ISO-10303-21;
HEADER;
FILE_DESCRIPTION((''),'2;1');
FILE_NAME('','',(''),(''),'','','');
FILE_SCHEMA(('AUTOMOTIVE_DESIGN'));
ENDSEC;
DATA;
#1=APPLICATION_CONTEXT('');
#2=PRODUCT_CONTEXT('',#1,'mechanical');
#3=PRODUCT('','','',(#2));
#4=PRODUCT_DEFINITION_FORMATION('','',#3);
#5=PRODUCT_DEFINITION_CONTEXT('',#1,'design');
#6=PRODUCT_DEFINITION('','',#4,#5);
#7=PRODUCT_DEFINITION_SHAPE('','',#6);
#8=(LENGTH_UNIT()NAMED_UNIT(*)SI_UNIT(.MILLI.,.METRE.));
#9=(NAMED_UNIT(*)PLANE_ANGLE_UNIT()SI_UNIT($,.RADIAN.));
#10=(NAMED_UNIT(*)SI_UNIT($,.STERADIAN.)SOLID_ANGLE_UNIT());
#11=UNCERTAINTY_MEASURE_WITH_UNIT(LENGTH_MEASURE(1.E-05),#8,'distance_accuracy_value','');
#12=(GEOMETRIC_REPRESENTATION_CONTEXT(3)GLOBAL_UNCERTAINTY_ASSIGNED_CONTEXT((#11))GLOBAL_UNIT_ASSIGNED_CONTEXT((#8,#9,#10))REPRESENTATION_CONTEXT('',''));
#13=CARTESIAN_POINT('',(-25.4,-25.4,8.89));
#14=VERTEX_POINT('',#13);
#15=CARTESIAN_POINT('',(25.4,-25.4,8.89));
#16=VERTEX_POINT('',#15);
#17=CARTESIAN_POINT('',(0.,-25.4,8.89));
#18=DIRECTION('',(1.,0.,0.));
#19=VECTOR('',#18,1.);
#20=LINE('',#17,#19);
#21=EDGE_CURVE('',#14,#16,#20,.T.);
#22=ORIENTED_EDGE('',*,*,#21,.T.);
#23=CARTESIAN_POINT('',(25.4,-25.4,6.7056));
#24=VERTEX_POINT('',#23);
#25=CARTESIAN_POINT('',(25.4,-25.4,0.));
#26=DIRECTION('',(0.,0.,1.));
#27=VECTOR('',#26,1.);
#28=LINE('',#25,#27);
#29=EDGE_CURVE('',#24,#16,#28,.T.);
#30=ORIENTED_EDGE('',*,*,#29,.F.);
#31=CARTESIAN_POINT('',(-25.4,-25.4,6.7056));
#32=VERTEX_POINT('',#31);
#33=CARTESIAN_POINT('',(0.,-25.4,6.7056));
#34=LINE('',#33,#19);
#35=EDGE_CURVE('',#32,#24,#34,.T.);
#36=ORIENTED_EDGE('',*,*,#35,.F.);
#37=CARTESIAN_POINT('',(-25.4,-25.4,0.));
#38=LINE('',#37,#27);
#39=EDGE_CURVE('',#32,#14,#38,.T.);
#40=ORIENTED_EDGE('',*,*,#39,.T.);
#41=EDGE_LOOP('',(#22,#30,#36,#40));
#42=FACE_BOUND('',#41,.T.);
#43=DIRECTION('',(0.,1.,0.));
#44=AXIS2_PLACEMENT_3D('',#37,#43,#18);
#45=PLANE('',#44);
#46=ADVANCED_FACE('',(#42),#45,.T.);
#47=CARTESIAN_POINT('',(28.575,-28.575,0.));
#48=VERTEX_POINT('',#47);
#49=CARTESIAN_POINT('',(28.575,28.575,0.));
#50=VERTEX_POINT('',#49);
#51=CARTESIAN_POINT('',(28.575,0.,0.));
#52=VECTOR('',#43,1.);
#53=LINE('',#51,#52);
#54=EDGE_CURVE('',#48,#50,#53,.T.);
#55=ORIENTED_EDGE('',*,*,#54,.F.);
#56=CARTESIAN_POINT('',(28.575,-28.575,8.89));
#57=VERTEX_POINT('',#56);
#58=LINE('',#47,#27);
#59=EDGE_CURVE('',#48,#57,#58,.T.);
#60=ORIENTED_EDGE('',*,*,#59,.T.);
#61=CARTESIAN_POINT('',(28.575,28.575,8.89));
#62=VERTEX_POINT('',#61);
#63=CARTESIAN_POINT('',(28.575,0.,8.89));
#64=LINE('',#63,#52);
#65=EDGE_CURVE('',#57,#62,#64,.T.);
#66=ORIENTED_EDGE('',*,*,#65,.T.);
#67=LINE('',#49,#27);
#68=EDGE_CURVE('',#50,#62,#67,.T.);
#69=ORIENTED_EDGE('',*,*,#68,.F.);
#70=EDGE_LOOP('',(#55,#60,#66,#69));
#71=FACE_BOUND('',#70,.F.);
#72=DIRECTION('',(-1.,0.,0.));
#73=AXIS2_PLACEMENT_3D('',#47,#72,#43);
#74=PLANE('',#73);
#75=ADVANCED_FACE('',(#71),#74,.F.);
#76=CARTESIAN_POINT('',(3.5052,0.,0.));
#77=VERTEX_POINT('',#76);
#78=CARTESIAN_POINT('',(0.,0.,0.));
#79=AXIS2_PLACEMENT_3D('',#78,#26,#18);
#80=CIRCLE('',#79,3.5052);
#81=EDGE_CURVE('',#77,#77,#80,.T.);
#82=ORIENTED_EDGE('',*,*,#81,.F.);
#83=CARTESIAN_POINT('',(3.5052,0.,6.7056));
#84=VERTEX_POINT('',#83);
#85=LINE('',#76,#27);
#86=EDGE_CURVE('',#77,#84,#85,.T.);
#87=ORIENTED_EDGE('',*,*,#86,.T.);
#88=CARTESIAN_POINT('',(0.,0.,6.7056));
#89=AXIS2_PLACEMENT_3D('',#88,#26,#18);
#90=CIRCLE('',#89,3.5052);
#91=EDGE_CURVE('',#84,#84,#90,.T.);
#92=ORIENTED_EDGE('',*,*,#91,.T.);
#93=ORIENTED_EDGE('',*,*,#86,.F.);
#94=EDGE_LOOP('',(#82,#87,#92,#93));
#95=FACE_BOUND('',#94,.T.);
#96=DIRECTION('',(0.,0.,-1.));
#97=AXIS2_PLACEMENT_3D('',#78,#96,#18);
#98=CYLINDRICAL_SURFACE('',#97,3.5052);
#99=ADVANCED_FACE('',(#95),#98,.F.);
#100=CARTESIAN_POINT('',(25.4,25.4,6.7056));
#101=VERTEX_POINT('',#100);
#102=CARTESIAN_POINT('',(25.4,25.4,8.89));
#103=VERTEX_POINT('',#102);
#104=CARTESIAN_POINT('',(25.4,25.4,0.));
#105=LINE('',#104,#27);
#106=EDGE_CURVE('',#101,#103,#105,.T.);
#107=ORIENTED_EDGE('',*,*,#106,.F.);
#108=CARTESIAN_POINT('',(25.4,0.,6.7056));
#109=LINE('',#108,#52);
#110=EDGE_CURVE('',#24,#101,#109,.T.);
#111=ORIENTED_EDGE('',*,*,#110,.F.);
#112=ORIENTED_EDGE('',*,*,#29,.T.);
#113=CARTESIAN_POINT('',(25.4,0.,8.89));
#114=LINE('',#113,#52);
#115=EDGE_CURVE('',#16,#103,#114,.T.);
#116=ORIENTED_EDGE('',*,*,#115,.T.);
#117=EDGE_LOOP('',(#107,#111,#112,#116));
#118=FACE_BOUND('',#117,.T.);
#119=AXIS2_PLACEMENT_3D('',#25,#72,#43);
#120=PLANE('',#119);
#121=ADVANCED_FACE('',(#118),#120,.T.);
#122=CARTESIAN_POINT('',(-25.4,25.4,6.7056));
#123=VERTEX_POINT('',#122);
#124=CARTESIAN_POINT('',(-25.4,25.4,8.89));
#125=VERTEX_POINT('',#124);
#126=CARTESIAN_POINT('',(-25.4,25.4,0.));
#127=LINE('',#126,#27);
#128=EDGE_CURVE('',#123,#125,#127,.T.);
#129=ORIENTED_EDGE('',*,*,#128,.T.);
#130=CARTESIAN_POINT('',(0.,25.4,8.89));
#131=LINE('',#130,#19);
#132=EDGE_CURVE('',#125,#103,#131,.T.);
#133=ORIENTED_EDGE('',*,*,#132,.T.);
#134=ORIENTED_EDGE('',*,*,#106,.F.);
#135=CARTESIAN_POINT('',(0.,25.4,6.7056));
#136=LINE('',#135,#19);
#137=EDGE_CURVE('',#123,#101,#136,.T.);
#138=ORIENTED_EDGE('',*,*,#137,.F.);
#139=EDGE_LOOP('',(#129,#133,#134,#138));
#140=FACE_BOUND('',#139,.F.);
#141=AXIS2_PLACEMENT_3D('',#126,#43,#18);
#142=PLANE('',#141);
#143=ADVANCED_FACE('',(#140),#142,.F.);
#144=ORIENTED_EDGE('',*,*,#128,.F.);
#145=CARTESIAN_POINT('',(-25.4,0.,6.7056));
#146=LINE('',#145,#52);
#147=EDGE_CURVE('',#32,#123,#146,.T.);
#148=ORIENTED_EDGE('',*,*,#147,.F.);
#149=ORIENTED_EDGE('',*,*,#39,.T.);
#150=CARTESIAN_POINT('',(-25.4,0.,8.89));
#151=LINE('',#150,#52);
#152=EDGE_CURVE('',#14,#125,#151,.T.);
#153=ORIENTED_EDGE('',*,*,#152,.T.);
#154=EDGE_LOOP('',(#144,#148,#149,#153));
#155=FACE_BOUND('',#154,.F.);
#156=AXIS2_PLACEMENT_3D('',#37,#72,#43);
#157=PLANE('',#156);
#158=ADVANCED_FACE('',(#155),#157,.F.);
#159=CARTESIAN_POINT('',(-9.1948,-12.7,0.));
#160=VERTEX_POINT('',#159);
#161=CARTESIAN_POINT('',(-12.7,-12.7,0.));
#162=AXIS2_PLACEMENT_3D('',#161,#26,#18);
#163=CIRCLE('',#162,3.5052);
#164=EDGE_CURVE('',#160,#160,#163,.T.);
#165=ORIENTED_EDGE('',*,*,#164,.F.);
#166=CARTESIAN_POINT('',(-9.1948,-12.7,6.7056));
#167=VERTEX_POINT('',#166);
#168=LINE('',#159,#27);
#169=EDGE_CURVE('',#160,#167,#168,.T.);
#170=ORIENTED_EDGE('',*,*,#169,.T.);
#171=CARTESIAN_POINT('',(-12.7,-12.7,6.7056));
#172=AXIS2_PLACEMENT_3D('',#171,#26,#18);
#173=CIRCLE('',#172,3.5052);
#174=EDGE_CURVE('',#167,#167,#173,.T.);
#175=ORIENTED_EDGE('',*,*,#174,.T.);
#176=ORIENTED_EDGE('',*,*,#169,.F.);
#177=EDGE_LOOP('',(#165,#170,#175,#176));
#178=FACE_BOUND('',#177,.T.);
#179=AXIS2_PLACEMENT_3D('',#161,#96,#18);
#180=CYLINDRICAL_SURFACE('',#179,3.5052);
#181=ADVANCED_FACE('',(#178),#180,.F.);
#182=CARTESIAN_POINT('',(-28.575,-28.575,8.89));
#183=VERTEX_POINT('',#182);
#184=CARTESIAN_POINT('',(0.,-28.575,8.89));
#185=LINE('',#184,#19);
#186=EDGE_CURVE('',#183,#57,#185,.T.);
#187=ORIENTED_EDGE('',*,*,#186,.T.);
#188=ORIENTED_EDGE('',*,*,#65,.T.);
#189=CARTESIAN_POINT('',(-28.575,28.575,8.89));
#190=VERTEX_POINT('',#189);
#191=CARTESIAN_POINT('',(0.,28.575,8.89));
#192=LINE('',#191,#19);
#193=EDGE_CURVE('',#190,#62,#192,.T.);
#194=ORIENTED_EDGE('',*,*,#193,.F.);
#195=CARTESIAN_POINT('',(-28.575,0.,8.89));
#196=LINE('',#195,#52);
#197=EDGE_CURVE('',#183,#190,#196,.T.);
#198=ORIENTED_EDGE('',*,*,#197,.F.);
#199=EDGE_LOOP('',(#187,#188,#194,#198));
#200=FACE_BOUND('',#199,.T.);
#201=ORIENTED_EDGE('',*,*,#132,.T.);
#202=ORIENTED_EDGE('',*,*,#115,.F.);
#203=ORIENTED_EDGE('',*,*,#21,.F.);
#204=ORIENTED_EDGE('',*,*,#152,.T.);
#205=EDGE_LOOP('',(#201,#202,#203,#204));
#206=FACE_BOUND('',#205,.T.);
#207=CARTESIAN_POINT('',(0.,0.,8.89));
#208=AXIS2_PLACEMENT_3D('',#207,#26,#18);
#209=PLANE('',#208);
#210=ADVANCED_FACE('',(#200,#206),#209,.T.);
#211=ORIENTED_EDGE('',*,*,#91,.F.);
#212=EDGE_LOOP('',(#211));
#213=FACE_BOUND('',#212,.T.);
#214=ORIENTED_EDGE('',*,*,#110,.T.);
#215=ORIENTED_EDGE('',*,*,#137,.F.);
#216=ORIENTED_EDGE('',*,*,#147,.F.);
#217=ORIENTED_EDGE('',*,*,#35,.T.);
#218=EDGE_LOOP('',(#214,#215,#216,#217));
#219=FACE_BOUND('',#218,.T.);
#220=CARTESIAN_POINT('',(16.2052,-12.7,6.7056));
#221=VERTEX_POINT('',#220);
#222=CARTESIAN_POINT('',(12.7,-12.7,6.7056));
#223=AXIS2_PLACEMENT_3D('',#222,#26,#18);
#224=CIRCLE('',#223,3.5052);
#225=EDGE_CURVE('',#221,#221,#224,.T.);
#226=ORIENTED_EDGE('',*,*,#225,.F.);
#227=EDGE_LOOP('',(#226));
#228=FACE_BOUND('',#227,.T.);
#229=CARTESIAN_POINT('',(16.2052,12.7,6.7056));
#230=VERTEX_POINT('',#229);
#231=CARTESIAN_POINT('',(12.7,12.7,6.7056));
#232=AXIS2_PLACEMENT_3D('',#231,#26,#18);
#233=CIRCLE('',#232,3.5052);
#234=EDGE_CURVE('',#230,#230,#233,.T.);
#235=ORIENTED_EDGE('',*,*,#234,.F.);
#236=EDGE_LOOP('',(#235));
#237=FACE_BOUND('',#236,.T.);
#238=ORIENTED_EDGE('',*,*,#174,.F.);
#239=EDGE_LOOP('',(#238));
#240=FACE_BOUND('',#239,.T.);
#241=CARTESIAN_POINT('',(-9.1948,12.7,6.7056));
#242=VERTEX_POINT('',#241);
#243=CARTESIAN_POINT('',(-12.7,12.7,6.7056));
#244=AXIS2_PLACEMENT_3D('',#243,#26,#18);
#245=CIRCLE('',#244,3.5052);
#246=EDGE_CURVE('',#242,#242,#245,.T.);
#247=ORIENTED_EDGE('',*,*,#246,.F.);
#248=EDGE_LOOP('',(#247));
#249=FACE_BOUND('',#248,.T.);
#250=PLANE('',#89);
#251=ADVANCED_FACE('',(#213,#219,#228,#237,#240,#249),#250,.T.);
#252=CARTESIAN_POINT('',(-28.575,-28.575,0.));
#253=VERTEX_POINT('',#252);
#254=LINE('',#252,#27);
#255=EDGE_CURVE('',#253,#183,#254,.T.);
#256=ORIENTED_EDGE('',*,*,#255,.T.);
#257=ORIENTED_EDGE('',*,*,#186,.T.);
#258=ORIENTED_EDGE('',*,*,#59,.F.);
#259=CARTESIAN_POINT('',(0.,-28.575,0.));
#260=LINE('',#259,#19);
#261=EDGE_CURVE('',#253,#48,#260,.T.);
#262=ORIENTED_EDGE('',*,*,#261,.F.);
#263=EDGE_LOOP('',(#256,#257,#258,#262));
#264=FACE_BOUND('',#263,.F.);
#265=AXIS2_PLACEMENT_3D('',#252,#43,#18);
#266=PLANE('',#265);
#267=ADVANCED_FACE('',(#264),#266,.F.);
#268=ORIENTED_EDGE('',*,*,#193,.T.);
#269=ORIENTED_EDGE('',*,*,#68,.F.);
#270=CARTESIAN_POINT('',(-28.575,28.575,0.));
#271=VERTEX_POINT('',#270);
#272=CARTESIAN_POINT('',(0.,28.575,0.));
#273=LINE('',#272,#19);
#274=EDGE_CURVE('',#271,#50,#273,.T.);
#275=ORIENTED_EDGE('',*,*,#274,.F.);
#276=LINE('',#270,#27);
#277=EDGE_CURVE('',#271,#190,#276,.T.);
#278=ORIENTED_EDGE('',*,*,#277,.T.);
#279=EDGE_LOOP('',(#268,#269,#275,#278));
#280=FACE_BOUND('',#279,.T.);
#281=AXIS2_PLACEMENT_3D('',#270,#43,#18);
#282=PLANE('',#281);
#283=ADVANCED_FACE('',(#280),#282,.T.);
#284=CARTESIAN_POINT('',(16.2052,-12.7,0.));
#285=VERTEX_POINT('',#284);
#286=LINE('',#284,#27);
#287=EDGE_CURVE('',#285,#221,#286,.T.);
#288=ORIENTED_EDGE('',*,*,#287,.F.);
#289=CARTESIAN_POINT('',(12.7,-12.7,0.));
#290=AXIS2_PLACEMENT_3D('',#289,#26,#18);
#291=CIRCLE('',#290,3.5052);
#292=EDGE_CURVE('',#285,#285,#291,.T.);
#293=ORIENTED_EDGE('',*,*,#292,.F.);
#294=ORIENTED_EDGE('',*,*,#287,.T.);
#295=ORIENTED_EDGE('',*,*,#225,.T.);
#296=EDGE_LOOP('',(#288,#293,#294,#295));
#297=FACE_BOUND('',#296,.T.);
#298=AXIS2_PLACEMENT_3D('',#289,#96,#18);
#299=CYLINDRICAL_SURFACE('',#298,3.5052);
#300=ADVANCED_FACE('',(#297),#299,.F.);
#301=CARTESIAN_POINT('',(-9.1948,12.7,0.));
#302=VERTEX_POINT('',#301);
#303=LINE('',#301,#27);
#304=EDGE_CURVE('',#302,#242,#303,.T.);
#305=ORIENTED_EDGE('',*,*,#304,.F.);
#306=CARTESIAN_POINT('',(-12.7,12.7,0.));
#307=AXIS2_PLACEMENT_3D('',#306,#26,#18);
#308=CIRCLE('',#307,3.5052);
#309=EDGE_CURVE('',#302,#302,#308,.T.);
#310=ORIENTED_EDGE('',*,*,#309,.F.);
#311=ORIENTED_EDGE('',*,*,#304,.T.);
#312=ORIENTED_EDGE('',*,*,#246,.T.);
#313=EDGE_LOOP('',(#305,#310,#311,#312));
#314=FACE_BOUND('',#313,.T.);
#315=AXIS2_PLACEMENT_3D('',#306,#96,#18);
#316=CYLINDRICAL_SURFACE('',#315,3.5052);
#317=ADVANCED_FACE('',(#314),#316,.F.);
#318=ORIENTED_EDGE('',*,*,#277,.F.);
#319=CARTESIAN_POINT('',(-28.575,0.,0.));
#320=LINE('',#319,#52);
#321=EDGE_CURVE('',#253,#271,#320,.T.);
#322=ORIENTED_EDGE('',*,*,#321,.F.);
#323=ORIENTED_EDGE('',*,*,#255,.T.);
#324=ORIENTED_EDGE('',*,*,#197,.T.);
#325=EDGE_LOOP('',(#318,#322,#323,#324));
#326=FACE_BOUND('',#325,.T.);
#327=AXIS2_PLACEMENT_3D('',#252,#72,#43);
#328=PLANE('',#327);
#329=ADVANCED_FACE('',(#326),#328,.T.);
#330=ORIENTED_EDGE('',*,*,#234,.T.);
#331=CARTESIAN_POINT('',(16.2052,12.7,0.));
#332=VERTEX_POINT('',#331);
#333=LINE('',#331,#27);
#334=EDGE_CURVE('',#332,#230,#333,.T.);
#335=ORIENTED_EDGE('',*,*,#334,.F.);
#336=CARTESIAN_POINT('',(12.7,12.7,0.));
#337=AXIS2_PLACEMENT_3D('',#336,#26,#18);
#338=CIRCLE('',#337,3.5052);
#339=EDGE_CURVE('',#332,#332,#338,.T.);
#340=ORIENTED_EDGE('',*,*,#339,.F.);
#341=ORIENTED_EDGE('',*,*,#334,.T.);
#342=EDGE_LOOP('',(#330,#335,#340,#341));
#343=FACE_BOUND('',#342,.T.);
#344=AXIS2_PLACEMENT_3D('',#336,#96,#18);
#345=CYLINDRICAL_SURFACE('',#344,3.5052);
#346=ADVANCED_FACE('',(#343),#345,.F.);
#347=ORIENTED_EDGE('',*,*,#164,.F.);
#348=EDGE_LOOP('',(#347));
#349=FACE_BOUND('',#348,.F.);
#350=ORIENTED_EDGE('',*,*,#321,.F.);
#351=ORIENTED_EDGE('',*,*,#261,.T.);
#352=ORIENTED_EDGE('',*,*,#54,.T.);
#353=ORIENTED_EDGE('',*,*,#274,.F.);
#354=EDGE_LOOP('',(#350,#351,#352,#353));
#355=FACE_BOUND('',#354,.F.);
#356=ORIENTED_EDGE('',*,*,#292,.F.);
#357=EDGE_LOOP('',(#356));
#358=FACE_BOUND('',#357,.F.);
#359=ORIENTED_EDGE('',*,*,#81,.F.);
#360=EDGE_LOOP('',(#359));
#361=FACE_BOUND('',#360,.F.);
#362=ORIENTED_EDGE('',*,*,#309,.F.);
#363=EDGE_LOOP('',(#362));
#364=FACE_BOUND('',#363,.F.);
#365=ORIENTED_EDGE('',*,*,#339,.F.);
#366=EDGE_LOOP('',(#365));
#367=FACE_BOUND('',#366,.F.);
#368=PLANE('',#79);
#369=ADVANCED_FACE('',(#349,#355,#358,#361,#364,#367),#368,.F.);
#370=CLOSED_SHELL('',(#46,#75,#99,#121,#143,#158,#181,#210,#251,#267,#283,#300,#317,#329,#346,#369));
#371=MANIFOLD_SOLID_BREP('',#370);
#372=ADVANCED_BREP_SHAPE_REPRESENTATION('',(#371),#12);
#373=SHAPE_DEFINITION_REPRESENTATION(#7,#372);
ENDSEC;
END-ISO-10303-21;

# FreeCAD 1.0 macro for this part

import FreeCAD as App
import Part
import Sketcher

V = App.Vector
Q = App.Units.Quantity

doc = App.newDocument("Part")
body = doc.addObject("PartDesign::Body", "Body")

# Sketch on XY plane
sketch1 = doc.addObject("Sketcher::SketchObject", "Sketch")
body.addObject(sketch1)
sketch1.AttachmentSupport = (doc.XY_Plane, [""])
sketch1.MapMode = "FlatFace"
sketch1.addGeometry(Part.LineSegment(V(-25.4, 25.4, 0), V(-25.4, -25.4, 0)), False)
sketch1.addGeometry(Part.LineSegment(V(-25.4, -25.4, 0), V(25.4, -25.4, 0)), False)
sketch1.addGeometry(Part.LineSegment(V(25.4, -25.4, 0), V(25.4, 25.4, 0)), False)
sketch1.addGeometry(Part.LineSegment(V(25.4, 25.4, 0), V(-25.4, 25.4, 0)), False)
sketch1.addGeometry(Part.Circle(V(-12.7, -12.7, 0), V(0, 0, 1), 3.5), False)
sketch1.addGeometry(Part.Circle(V(12.7, -12.7, 0), V(0, 0, 1), 3.5), False)
sketch1.addGeometry(Part.Circle(V(-12.7, 12.7, 0), V(0, 0, 1), 3.5), False)
sketch1.addGeometry(Part.Circle(V(0, 0, 0), V(0, 0, 1), 3.5), False)
sketch1.addGeometry(Part.Circle(V(12.7, 12.7, 0), V(0, 0, 1), 3.5), False)
sketch1.addConstraint(Sketcher.Constraint("Coincident", 0, 2, 1, 1))
sketch1.addConstraint(Sketcher.Constraint("Coincident", 1, 2, 2, 1))
sketch1.addConstraint(Sketcher.Constraint("Coincident", 2, 2, 3, 1))
sketch1.addConstraint(Sketcher.Constraint("Coincident", 3, 2, 0, 1))
sketch1.addConstraint(Sketcher.Constraint("Vertical", 0))
sketch1.addConstraint(Sketcher.Constraint("Horizontal", 1))
sketch1.addConstraint(Sketcher.Constraint("Vertical", 2))
sketch1.addConstraint(Sketcher.Constraint("Horizontal", 3))
sketch1.addConstraint(Sketcher.Constraint("Coincident", 7, 3, -1, 1))
sketch1.addConstraint(Sketcher.Constraint("Equal", 4, 5))
sketch1.addConstraint(Sketcher.Constraint("Equal", 5, 6))
sketch1.addConstraint(Sketcher.Constraint("Equal", 6, 7))
sketch1.addConstraint(Sketcher.Constraint("Equal", 7, 8))
sketch1.addConstraint(Sketcher.Constraint("Symmetric", 5, 3, 6, 3, -1, 1))
sketch1.addConstraint(Sketcher.Constraint("Symmetric", 4, 3, 8, 3, -1, 1))
sketch1.addConstraint(Sketcher.Constraint("Symmetric", 0, 2, 2, 2, -1, 1))
sketch1.addConstraint(Sketcher.Constraint("Symmetric", 4, 3, 5, 3, -2))
sketch1.addConstraint(Sketcher.Constraint("Equal", 3, 0))
sketch1.addConstraint(Sketcher.Constraint("DistanceX", 1, 1, 1, 2, Q("2 in")))
sketch1.addConstraint(Sketcher.Constraint("Diameter", 4, Q("0.276 in")))
sketch1.addConstraint(Sketcher.Constraint("DistanceX", 4, 3, 5, 3, Q("1 in")))
sketch1.addConstraint(Sketcher.Constraint("DistanceY", 4, 3, 6, 3, Q("1 in")))
pad1 = doc.addObject("PartDesign::Pad", "Pad")
body.addObject(pad1)
pad1.Profile = sketch1
pad1.Length = Q("0.264 in")

# Sketch on XY plane
sketch2 = doc.addObject("Sketcher::SketchObject", "Sketch001")
body.addObject(sketch2)
sketch2.AttachmentSupport = (doc.XY_Plane, [""])
sketch2.MapMode = "FlatFace"
sketch2.addGeometry(Part.LineSegment(V(-29, 29, 0), V(-29, -29, 0)), False)
sketch2.addGeometry(Part.LineSegment(V(-29, -29, 0), V(29, -29, 0)), False)
sketch2.addGeometry(Part.LineSegment(V(29, -29, 0), V(29, 29, 0)), False)
sketch2.addGeometry(Part.LineSegment(V(29, 29, 0), V(-29, 29, 0)), False)
sketch2.addGeometry(Part.LineSegment(V(25, -25, 0), V(-25, -25, 0)), False)
sketch2.addGeometry(Part.LineSegment(V(-25, -25, 0), V(-25, 25, 0)), False)
sketch2.addGeometry(Part.LineSegment(V(-25, 25, 0), V(25, 25, 0)), False)
sketch2.addGeometry(Part.LineSegment(V(25, 25, 0), V(25, -25, 0)), False)
sketch2.addConstraint(Sketcher.Constraint("Coincident", 0, 2, 1, 1))
sketch2.addConstraint(Sketcher.Constraint("Coincident", 1, 2, 2, 1))
sketch2.addConstraint(Sketcher.Constraint("Coincident", 2, 2, 3, 1))
sketch2.addConstraint(Sketcher.Constraint("Coincident", 3, 2, 0, 1))
sketch2.addConstraint(Sketcher.Constraint("Coincident", 4, 2, 5, 1))
sketch2.addConstraint(Sketcher.Constraint("Coincident", 5, 2, 6, 1))
sketch2.addConstraint(Sketcher.Constraint("Coincident", 6, 2, 7, 1))
sketch2.addConstraint(Sketcher.Constraint("Coincident", 7, 2, 4, 1))
sketch2.addConstraint(Sketcher.Constraint("Vertical", 0))
sketch2.addConstraint(Sketcher.Constraint("Horizontal", 1))
sketch2.addConstraint(Sketcher.Constraint("Vertical", 2))
sketch2.addConstraint(Sketcher.Constraint("Horizontal", 3))
sketch2.addConstraint(Sketcher.Constraint("Horizontal", 4))
sketch2.addConstraint(Sketcher.Constraint("Vertical", 5))
sketch2.addConstraint(Sketcher.Constraint("Horizontal", 6))
sketch2.addConstraint(Sketcher.Constraint("Vertical", 7))
sketch2.addConstraint(Sketcher.Constraint("Symmetric", 0, 2, 2, 2, -1, 1))
sketch2.addConstraint(Sketcher.Constraint("Symmetric", 4, 2, 6, 2, -1, 1))
sketch2.addConstraint(Sketcher.Constraint("Equal", 3, 0))
sketch2.addConstraint(Sketcher.Constraint("Equal", 6, 5))
sketch2.addConstraint(Sketcher.Constraint("DistanceX", 4, 2, 4, 1, Q("2 in")))
sketch2.addConstraint(Sketcher.Constraint("DistanceX", 1, 1, 1, 2, Q("2.25 in")))
pad2 = doc.addObject("PartDesign::Pad", "Pad001")
body.addObject(pad2)
pad2.Profile = sketch2
pad2.Length = Q("0.35 in")

doc.recompute()
